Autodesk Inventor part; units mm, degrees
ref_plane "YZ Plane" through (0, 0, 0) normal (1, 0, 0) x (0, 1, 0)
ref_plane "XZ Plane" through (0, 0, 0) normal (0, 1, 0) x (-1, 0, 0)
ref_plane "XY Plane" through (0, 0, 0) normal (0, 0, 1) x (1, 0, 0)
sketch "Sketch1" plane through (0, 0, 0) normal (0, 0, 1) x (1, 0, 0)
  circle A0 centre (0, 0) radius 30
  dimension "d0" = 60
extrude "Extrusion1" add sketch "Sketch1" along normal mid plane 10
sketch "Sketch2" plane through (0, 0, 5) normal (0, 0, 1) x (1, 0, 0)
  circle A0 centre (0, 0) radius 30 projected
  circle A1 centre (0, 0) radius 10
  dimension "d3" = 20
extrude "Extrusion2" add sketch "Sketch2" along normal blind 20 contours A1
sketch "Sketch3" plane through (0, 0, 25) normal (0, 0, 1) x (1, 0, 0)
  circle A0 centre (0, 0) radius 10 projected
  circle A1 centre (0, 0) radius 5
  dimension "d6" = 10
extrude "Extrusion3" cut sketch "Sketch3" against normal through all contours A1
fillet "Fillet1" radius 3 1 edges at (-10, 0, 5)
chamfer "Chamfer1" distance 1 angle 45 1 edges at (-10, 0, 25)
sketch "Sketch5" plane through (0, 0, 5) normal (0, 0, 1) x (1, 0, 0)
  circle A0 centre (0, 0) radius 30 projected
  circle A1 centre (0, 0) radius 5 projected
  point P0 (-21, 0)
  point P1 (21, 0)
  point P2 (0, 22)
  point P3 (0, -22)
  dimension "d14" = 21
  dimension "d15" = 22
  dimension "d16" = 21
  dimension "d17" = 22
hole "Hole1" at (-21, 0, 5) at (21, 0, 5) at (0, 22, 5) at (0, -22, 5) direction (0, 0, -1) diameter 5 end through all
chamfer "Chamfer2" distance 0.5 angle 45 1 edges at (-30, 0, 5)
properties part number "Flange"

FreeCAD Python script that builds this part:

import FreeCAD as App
import Part
import Sketcher


def edges_at(feature, points):
    """Names of the edges that pass closest to the given points."""
    edges = feature.Shape.Edges
    near = lambda p: min(range(len(edges)), key=lambda i: edges[i].distToShape(Part.Vertex(*p))[0])
    return sorted({f"Edge{near(p) + 1}" for p in points})

doc = App.newDocument("Part")
body = doc.addObject("PartDesign::Body", "Body")

# Sketch on XY plane
sketch1 = doc.addObject("Sketcher::SketchObject", "Sketch")
body.addObject(sketch1)
sketch1.AttachmentSupport = (doc.XY_Plane, [""])
sketch1.MapMode = "FlatFace"
sketch1.addGeometry(Part.Circle(App.Vector(0, 0, 0), App.Vector(0, 0, 1), 30), False)
sketch1.addConstraint([
    Sketcher.Constraint("Coincident", 0, 3, -1, 1),
    Sketcher.Constraint("Diameter", 0, 60.0),
])
pad1 = doc.addObject("PartDesign::Pad", "Pad")
body.addObject(pad1)
pad1.Profile = sketch1
pad1.Length = 10
pad1.Midplane = True

# Sketch on XY plane
sketch2 = doc.addObject("Sketcher::SketchObject", "Sketch001")
body.addObject(sketch2)
sketch2.AttachmentSupport = (doc.XY_Plane, [""])
sketch2.MapMode = "FlatFace"
sketch2.AttachmentOffset = App.Placement(App.Vector(0, 0, 5), App.Rotation())
sketch2.addGeometry(Part.Circle(App.Vector(0, 0, 0), App.Vector(0, 0, 1), 10), False)
sketch2.addConstraint([
    Sketcher.Constraint("Coincident", 0, 3, -1, 1),
    Sketcher.Constraint("Diameter", 0, 20.0),
])
pad2 = doc.addObject("PartDesign::Pad", "Pad001")
body.addObject(pad2)
pad2.Profile = sketch2
pad2.Length = 20

# Sketch on XY plane
sketch3 = doc.addObject("Sketcher::SketchObject", "Sketch002")
body.addObject(sketch3)
sketch3.AttachmentSupport = (doc.XY_Plane, [""])
sketch3.MapMode = "FlatFace"
sketch3.AttachmentOffset = App.Placement(App.Vector(0, 0, 25), App.Rotation())
sketch3.addGeometry(Part.Circle(App.Vector(0, 0, 0), App.Vector(0, 0, 1), 5), False)
sketch3.addConstraint([
    Sketcher.Constraint("Coincident", 0, 3, -1, 1),
    Sketcher.Constraint("Diameter", 0, 10.0),
])
pocket1 = doc.addObject("PartDesign::Pocket", "Pocket")
body.addObject(pocket1)
pocket1.Profile = sketch3
pocket1.Type = "ThroughAll"
doc.recompute()

fillet = doc.addObject("PartDesign::Fillet", "Fillet")
body.addObject(fillet)
fillet.Base = (pocket1, edges_at(pocket1, [(-10, 0, 5)]))
fillet.Radius = 3
doc.recompute()

chamfer = doc.addObject("PartDesign::Chamfer", "Chamfer")
body.addObject(chamfer)
chamfer.Base = (fillet, edges_at(fillet, [(-10, 0, 25)]))
chamfer.Size = 1

# Sketch on XY plane
sketch4 = doc.addObject("Sketcher::SketchObject", "Sketch003")
body.addObject(sketch4)
sketch4.AttachmentSupport = (doc.XY_Plane, [""])
sketch4.MapMode = "FlatFace"
sketch4.AttachmentOffset = App.Placement(App.Vector(0, 0, 5), App.Rotation())
sketch4.addGeometry([
    Part.Circle(App.Vector(-21, 0, 0), App.Vector(0, 0, 1), 2.5),
    Part.Circle(App.Vector(21, 0, 0), App.Vector(0, 0, 1), 2.5),
    Part.Circle(App.Vector(0, 22, 0), App.Vector(0, 0, 1), 2.5),
    Part.Circle(App.Vector(0, -22, 0), App.Vector(0, 0, 1), 2.5),
], False)
sketch4.addConstraint([
    Sketcher.Constraint("Equal", 0, 1),
    Sketcher.Constraint("Equal", 1, 2),
    Sketcher.Constraint("Equal", 2, 3),
    Sketcher.Constraint("Symmetric", 0, 3, 1, 3, -1, 1),
    Sketcher.Constraint("Symmetric", 2, 3, 3, 3, -1, 1),
    Sketcher.Constraint("PointOnObject", 0, 3, -1),
    Sketcher.Constraint("PointOnObject", 2, 3, -2),
    Sketcher.Constraint("Diameter", 0, 5.0),
    Sketcher.Constraint("DistanceX", 0, 3, -1, 1, 21.0),
    Sketcher.Constraint("DistanceY", -1, 1, 2, 3, 22.0),
])
doc.recompute()
hole = doc.addObject("PartDesign::Hole", "Hole")
body.addObject(hole)
hole.Profile = sketch4
hole.ThreadType = "None"
hole.Diameter = 5
hole.DepthType = "ThroughAll"
doc.recompute()

chamfer2 = doc.addObject("PartDesign::Chamfer", "Chamfer001")
body.addObject(chamfer2)
chamfer2.Base = (hole, edges_at(hole, [(-30, 0, 5)]))
chamfer2.Size = 0.5

doc.recompute()
